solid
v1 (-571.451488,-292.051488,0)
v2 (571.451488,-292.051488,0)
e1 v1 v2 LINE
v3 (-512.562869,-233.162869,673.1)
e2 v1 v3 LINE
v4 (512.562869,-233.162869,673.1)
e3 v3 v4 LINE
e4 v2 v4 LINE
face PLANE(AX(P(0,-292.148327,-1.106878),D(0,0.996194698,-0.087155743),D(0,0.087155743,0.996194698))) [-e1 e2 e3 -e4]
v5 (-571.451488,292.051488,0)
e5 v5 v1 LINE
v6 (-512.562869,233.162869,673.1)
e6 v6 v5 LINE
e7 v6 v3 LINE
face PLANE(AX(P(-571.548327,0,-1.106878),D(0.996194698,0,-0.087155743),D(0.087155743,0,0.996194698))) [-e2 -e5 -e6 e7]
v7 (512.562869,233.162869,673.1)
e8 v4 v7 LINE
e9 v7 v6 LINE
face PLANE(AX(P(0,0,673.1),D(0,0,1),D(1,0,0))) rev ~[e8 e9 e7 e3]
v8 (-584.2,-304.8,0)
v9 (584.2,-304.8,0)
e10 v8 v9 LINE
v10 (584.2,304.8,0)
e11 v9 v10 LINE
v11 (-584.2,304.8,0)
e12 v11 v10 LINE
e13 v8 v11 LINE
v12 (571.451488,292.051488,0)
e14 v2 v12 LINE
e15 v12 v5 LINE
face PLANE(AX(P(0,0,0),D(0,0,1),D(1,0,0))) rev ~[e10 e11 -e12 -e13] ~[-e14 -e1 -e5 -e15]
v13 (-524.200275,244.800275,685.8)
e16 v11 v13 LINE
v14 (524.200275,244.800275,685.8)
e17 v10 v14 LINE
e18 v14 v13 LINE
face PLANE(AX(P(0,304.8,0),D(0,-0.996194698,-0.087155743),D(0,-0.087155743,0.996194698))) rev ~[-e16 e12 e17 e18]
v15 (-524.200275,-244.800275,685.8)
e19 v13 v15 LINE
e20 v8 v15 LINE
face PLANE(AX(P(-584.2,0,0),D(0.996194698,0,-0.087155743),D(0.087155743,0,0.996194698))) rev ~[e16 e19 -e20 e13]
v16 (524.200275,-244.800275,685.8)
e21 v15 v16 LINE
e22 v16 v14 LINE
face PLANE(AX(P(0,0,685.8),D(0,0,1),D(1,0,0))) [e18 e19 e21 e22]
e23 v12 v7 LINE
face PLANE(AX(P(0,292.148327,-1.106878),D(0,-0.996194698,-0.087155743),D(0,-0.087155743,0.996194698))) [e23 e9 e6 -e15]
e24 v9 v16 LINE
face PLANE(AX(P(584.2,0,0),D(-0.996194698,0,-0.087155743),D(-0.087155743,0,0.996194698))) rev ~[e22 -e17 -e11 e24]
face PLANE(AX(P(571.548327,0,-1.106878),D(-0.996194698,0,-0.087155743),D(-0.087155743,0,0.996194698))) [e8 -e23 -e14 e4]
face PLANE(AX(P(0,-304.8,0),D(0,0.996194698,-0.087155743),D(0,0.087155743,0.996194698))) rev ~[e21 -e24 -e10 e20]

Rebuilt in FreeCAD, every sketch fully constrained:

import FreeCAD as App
import Part
import Sketcher
Q = App.Units.Quantity


def faces_at(feature, points):
    """Names of the faces that lie closest to the given points."""
    faces = feature.Shape.Faces
    near = lambda p: min(range(len(faces)), key=lambda i: faces[i].distToShape(Part.Vertex(*p))[0])
    return sorted({f"Face{near(p) + 1}" for p in points})


def add_polygon(sketch, points):
    """Adds a closed chain of lines whose ends are joined by coincident constraints."""
    first, n = sketch.GeometryCount, len(points)
    for a, b in zip(points, points[1:] + points[:1]):
        sketch.addGeometry(Part.LineSegment(App.Vector(*a, 0), App.Vector(*b, 0)), False)
    for i in range(n):
        sketch.addConstraint(Sketcher.Constraint("Coincident", first + i, 2, first + (i + 1) % n, 1))

doc = App.newDocument("Part")
body = doc.addObject("PartDesign::Body", "Body")

# Sketch on XY plane
sketch1 = body.newObject("Sketcher::SketchObject", "Sketch")
sketch1.AttachmentSupport = (doc.getObject("XY_Plane"), [""])
sketch1.MapMode = "FlatFace"
add_polygon(sketch1, [(-584, 305), (-584, -305), (584, -305), (584, 305)])  # lines 0-3
sketch1.addConstraint(Sketcher.Constraint("Vertical", 0))
sketch1.addConstraint(Sketcher.Constraint("Horizontal", 1))
sketch1.addConstraint(Sketcher.Constraint("Vertical", 2))
sketch1.addConstraint(Sketcher.Constraint("Horizontal", 3))
sketch1.addConstraint(Sketcher.Constraint("Symmetric", 0, 2, 2, 2, -1, 1))
sketch1.addConstraint(Sketcher.Constraint("DistanceX", 1, 1, 1, 2, Q("46 in")))
sketch1.addConstraint(Sketcher.Constraint("DistanceY", 0, 2, 0, 1, Q("24 in")))
pad1 = body.newObject("PartDesign::Pad", "Pad")
pad1.Profile = sketch1
pad1.Length = Q("27 in")
pad1.TaperAngle = -5
doc.recompute()

thickness = body.newObject("PartDesign::Thickness", "Thickness")
thickness.Base = (pad1, faces_at(pad1, [(0, 0, 0)]))
thickness.Value = Q("0.5 in")
thickness.Reversed = True
thickness.Join = "Arc"

doc.recompute()
